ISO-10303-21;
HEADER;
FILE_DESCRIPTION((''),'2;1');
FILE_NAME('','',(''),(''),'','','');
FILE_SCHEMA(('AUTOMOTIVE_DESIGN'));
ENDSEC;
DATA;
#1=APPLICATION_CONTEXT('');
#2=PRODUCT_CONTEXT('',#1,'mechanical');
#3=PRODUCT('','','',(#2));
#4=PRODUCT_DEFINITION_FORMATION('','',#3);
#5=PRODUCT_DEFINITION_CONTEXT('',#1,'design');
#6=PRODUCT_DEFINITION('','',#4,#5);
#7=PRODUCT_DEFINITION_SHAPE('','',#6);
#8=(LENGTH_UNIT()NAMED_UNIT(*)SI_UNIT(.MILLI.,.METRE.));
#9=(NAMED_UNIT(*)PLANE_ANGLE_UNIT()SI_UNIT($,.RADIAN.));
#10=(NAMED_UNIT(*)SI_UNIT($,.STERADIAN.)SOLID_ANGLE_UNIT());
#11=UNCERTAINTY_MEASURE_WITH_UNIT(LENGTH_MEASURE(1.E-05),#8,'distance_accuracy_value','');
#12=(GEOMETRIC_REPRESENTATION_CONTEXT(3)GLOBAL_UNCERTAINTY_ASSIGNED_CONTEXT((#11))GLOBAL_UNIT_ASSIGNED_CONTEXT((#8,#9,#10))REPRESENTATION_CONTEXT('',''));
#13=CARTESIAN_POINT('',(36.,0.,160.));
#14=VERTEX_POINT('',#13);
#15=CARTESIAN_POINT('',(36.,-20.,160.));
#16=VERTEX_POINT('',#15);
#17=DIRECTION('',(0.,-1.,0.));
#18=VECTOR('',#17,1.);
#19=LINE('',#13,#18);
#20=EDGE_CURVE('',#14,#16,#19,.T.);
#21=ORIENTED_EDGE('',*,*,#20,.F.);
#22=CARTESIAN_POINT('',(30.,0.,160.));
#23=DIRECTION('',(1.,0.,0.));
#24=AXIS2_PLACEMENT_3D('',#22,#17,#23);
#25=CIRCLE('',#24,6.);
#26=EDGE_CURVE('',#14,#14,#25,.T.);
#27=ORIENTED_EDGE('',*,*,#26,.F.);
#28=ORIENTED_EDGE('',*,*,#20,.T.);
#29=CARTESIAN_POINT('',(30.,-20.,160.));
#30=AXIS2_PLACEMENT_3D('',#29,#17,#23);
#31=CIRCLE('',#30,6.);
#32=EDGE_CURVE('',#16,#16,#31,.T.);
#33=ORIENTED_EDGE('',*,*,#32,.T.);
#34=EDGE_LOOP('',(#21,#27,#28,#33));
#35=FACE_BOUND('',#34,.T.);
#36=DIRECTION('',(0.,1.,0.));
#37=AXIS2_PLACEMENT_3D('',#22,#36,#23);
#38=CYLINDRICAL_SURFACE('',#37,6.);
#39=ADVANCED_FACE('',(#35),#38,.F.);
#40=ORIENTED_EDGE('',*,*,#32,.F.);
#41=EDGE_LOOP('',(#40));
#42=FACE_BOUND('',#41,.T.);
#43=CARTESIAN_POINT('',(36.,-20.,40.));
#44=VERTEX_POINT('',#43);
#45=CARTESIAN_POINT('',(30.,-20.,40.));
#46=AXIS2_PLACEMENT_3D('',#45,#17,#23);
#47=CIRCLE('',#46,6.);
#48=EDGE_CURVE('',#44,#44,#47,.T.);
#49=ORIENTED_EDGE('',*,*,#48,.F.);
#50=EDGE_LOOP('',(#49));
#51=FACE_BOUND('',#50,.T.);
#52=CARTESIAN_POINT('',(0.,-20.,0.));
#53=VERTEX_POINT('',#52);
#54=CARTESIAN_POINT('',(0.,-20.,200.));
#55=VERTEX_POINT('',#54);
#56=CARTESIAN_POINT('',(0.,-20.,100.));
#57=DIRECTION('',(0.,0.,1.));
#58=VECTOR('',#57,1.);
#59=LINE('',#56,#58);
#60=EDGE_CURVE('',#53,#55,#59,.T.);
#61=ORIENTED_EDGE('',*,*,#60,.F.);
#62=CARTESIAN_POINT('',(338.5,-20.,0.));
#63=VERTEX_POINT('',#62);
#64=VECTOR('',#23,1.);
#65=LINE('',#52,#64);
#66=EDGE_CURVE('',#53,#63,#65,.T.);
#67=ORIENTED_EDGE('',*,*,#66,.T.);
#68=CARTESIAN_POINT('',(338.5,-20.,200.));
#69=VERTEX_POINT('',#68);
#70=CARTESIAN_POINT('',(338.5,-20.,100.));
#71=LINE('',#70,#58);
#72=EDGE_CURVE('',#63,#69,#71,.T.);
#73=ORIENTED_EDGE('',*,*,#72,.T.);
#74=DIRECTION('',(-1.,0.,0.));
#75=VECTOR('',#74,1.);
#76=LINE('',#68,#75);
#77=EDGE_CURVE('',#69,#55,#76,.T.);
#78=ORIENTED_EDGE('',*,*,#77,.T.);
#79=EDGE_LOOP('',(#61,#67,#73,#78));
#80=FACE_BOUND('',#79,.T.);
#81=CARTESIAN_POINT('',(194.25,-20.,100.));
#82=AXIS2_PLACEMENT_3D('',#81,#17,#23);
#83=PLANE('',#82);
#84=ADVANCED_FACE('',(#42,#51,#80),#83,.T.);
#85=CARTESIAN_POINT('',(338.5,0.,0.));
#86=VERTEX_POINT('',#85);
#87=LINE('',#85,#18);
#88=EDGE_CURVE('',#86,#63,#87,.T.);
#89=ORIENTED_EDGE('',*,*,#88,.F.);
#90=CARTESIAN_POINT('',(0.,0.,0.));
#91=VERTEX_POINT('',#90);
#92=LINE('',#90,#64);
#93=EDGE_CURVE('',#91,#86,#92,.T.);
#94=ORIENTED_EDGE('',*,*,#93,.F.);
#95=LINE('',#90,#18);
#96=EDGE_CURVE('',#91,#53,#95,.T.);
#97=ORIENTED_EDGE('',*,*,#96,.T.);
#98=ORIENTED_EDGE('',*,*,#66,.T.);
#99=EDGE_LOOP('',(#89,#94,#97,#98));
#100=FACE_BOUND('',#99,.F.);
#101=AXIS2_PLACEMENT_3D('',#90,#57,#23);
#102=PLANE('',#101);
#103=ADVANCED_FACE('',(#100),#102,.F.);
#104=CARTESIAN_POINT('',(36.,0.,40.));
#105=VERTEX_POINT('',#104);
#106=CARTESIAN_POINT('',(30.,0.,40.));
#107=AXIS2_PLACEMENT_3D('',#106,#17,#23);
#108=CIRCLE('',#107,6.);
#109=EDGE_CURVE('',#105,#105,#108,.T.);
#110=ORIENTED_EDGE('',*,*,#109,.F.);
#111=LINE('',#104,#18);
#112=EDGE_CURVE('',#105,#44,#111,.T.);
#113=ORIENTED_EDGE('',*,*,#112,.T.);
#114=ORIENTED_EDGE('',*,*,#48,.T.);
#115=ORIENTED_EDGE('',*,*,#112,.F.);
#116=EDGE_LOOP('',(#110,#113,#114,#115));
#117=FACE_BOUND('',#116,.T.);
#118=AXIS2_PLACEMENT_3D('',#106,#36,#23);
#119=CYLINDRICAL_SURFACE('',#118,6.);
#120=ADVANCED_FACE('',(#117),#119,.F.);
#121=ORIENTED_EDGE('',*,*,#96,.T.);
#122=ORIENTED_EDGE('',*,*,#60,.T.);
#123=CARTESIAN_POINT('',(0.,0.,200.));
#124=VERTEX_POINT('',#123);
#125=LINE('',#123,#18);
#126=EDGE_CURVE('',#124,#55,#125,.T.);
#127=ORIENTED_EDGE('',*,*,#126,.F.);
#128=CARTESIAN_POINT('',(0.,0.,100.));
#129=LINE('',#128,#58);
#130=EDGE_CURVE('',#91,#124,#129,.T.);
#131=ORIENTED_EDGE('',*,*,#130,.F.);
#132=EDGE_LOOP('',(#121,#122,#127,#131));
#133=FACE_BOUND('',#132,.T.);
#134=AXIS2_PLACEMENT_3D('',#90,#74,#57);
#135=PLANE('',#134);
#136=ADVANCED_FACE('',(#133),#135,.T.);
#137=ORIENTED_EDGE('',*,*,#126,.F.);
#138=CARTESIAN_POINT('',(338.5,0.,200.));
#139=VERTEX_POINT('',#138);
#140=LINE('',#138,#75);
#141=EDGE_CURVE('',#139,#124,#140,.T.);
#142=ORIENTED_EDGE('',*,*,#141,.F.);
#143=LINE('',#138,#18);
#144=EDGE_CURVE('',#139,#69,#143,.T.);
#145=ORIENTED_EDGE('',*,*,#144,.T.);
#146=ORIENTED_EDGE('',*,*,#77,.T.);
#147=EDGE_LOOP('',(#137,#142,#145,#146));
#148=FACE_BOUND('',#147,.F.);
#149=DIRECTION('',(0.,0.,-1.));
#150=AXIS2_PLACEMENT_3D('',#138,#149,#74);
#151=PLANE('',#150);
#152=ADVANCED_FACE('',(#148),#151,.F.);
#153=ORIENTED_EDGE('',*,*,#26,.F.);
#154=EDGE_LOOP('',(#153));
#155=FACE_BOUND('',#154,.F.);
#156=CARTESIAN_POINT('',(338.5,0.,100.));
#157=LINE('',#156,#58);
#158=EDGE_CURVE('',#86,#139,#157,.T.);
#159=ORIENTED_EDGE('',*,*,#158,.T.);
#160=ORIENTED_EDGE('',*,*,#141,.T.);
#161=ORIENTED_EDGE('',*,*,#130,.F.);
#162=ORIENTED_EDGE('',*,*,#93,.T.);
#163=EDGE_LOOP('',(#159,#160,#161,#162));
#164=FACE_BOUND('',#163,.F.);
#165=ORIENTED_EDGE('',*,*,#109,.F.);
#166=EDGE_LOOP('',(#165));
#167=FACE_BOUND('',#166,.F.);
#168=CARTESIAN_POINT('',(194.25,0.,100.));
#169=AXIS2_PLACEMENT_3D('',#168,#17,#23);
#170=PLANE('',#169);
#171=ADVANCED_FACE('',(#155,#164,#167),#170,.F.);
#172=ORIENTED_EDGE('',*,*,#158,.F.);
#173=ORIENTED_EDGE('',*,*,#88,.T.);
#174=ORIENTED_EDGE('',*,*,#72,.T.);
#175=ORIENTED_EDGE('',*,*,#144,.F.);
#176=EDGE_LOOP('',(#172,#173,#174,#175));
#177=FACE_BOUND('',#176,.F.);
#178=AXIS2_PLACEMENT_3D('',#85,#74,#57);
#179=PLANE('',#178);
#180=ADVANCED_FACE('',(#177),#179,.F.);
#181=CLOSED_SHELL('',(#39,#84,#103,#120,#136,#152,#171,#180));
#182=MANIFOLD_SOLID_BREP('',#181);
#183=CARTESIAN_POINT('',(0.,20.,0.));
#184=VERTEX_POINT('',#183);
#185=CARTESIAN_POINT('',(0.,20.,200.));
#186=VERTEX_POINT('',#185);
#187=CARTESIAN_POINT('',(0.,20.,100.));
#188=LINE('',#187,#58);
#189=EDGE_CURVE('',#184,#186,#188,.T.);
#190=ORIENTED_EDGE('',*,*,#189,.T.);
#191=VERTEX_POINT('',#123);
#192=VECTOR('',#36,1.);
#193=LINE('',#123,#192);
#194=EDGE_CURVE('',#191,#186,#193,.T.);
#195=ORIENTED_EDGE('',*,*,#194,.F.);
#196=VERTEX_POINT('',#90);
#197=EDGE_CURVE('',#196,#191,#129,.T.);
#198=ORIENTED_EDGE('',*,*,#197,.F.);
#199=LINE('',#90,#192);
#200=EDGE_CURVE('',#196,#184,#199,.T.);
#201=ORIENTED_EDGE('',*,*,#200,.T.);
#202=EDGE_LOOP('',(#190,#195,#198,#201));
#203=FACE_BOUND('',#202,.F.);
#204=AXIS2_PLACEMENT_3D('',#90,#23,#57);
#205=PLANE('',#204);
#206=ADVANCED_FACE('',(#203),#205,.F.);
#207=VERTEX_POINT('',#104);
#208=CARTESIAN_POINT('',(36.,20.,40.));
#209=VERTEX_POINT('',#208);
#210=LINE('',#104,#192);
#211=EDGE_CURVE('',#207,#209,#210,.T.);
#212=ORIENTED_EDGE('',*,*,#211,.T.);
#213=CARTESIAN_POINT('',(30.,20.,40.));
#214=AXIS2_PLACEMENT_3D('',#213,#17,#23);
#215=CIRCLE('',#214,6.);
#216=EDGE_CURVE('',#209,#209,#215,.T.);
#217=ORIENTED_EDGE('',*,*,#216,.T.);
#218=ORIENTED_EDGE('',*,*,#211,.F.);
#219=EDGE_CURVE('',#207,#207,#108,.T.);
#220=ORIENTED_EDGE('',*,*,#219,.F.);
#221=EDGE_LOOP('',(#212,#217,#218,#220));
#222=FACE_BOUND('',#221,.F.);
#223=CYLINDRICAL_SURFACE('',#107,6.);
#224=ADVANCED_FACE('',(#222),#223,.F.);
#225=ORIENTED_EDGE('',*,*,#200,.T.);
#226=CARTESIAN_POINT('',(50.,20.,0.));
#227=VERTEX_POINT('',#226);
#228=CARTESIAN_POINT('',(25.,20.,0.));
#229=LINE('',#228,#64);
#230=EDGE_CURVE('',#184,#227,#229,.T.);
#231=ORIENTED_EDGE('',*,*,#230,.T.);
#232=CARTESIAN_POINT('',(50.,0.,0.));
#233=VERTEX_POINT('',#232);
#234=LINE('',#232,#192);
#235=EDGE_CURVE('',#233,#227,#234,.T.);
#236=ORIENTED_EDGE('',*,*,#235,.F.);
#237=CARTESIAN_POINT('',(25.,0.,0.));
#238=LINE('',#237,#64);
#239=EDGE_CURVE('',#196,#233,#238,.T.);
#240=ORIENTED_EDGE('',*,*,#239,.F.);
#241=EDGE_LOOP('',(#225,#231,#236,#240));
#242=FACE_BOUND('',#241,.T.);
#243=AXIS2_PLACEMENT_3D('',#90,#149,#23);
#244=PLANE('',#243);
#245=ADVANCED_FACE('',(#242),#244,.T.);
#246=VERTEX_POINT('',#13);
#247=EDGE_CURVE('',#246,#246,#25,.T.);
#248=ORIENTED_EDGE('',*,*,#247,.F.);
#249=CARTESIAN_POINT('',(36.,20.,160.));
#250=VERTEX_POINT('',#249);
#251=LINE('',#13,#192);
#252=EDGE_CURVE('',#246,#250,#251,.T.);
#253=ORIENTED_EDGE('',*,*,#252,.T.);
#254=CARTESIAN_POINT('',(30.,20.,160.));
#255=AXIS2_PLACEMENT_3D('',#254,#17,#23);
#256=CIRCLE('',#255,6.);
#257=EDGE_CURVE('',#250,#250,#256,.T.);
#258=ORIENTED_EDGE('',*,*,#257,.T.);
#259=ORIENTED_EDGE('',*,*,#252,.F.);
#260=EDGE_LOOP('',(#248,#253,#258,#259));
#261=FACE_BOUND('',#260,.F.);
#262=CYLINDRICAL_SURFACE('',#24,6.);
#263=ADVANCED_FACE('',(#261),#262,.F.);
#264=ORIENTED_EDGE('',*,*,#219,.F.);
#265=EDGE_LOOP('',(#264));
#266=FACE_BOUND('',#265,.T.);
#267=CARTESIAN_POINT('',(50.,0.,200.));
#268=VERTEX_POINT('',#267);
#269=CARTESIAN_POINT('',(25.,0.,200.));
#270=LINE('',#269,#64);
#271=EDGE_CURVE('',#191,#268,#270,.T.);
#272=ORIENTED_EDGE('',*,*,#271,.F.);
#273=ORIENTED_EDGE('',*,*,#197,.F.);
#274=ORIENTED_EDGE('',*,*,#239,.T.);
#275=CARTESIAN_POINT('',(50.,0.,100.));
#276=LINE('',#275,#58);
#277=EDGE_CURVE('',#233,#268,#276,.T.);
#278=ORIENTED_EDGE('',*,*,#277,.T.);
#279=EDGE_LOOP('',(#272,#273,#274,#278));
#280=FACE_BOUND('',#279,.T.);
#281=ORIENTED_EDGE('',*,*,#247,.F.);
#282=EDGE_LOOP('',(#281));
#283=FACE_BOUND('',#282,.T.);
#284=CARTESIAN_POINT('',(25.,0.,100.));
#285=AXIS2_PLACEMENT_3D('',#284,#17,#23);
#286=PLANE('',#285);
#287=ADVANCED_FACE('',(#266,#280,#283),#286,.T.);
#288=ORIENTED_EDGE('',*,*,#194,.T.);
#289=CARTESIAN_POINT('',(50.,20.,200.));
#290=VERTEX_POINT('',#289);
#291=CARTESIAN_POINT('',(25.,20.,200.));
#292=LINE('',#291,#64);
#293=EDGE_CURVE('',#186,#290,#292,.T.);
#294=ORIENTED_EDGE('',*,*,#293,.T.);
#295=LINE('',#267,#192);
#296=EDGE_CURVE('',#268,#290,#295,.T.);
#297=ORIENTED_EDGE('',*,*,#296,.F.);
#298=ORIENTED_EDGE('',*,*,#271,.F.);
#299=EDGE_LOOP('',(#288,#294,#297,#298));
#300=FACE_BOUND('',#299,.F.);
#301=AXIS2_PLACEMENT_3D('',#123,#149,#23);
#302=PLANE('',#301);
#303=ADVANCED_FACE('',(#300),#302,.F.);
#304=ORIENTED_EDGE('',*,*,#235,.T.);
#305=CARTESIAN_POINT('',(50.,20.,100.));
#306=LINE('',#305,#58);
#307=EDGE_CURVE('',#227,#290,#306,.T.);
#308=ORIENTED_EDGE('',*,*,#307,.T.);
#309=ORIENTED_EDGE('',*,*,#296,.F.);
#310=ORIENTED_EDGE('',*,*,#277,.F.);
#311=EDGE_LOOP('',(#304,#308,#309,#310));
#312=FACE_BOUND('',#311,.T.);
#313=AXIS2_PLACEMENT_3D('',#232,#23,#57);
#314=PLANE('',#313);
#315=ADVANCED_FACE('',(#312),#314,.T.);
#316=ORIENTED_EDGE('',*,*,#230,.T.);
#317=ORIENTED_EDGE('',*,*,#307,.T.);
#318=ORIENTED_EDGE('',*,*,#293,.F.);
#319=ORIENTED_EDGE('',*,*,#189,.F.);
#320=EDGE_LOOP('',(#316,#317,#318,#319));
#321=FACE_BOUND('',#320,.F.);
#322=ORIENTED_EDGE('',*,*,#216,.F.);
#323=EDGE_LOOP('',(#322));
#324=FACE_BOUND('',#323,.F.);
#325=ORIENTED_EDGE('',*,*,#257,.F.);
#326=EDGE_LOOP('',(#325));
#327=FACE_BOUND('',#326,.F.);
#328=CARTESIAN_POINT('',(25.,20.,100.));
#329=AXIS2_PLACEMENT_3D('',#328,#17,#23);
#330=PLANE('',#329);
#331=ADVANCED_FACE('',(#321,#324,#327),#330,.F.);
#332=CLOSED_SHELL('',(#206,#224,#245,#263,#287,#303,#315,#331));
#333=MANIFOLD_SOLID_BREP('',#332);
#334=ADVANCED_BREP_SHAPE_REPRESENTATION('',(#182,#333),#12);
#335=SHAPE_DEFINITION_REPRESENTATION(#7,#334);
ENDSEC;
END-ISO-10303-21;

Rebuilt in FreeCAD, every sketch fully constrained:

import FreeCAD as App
import Part
import Sketcher

V = App.Vector
Q = App.Units.Quantity


def add_polygon(sketch, points):
    """Adds a closed chain of lines whose ends are joined by coincident constraints."""
    first, n = sketch.GeometryCount, len(points)
    for a, b in zip(points, points[1:] + points[:1]):
        sketch.addGeometry(Part.LineSegment(App.Vector(*a, 0), App.Vector(*b, 0)), False)
    for i in range(n):
        sketch.addConstraint(Sketcher.Constraint("Coincident", first + i, 2, first + (i + 1) % n, 1))

doc = App.newDocument("Part")
body = doc.addObject("PartDesign::Body", "Body")

sketch1 = body.newObject("Sketcher::SketchObject", "Sketch")
sketch1.AttachmentSupport = (doc.getObject("XZ_Plane"), [""])
sketch1.MapMode = "FlatFace"
add_polygon(sketch1, [(338, 0), (338, 200), (0, 200), (0, 0)])
sketch1.addGeometry(Part.Circle(V(30, 40, 0), V(0, 0, 1), 6), False)
sketch1.addGeometry(Part.Circle(V(30, 160, 0), V(0, 0, 1), 6), False)
sketch1.addConstraint([
    Sketcher.Constraint("Vertical", 0),
    Sketcher.Constraint("Horizontal", 1),
    Sketcher.Constraint("Vertical", 2),
    Sketcher.Constraint("Horizontal", 3),
    Sketcher.Constraint("Coincident", 2, 2, -1, 1),
    Sketcher.Constraint("Equal", 4, 5),
    Sketcher.Constraint("Vertical", 4, 3, 5, 3),
    Sketcher.Constraint("Diameter", 4, Q("12 mm")),
    Sketcher.Constraint("DistanceY", 0, 1, 0, 2, Q("200 mm")),
    Sketcher.Constraint("DistanceX", 1, 2, 1, 1, Q("338.5 mm")),
    Sketcher.Constraint("DistanceX", -1, 1, 4, 3, Q("30 mm")),
    Sketcher.Constraint("DistanceY", -1, 1, 4, 3, Q("40 mm")),
    Sketcher.Constraint("DistanceY", -1, 1, 5, 3, Q("160 mm")),
])
pad1 = body.newObject("PartDesign::Pad", "Pad")
pad1.Profile = sketch1
pad1.Length = 20
body2 = doc.addObject("PartDesign::Body", "Body001")

sketch2 = body2.newObject("Sketcher::SketchObject", "Sketch001")
sketch2.AttachmentSupport = (doc.getObject("XZ_Plane001"), [""])
sketch2.MapMode = "FlatFace"
add_polygon(sketch2, [(0, 200), (0, 0), (50, 0), (50, 200)])
sketch2.addGeometry(Part.Circle(V(30, 40, 0), V(0, 0, 1), 6), False)
sketch2.addGeometry(Part.Circle(V(30, 160, 0), V(0, 0, 1), 6), False)
sketch2.addConstraint([
    Sketcher.Constraint("Vertical", 0),
    Sketcher.Constraint("Horizontal", 1),
    Sketcher.Constraint("Vertical", 2),
    Sketcher.Constraint("Horizontal", 3),
    Sketcher.Constraint("Coincident", 0, 2, -1, 1),
    Sketcher.Constraint("Equal", 4, 5),
    Sketcher.Constraint("Vertical", 4, 3, 5, 3),
    Sketcher.Constraint("Diameter", 4, Q("12 mm")),
    Sketcher.Constraint("DistanceX", 1, 1, 1, 2, Q("50 mm")),
    Sketcher.Constraint("DistanceY", 0, 2, 0, 1, Q("200 mm")),
    Sketcher.Constraint("DistanceX", -1, 1, 4, 3, Q("30 mm")),
    Sketcher.Constraint("DistanceY", -1, 1, 4, 3, Q("40 mm")),
    Sketcher.Constraint("DistanceY", -1, 1, 5, 3, Q("160 mm")),
])
pad2 = body2.newObject("PartDesign::Pad", "Pad001")
pad2.Profile = sketch2
pad2.Length = 20
pad2.Reversed = True

doc.recompute()
